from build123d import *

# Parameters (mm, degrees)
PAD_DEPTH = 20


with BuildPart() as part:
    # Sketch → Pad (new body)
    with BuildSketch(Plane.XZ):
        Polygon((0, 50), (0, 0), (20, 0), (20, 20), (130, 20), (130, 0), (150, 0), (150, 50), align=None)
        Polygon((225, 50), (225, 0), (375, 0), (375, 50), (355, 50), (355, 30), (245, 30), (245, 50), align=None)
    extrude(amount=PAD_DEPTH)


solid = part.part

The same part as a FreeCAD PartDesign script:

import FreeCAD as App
import Part
import Sketcher
Q = App.Units.Quantity


def add_polygon(sketch, points):
    """Adds a closed chain of lines whose ends are joined by coincident constraints."""
    first, n = sketch.GeometryCount, len(points)
    for a, b in zip(points, points[1:] + points[:1]):
        sketch.addGeometry(Part.LineSegment(App.Vector(*a, 0), App.Vector(*b, 0)), False)
    for i in range(n):
        sketch.addConstraint(Sketcher.Constraint("Coincident", first + i, 2, first + (i + 1) % n, 1))

doc = App.newDocument("Part")
body = doc.addObject("PartDesign::Body", "Body")
body.AllowCompound = True

sketch1 = body.newObject("Sketcher::SketchObject", "Sketch")
sketch1.AttachmentSupport = (doc.getObject("XZ_Plane"), [""])
sketch1.MapMode = "FlatFace"
add_polygon(sketch1, [(0, 50), (0, 0), (20, 0), (20, 20), (130, 20), (130, 0), (150, 0), (150, 50)])
add_polygon(sketch1, [(225, 50), (225, 0), (375, 0), (375, 50), (355, 50), (355, 30), (245, 30), (245, 50)])
sketch1.addConstraint([
    Sketcher.Constraint("Vertical", 0),
    Sketcher.Constraint("Horizontal", 1),
    Sketcher.Constraint("Vertical", 2),
    Sketcher.Constraint("Horizontal", 3),
    Sketcher.Constraint("Vertical", 4),
    Sketcher.Constraint("Horizontal", 5),
    Sketcher.Constraint("Vertical", 6),
    Sketcher.Constraint("Horizontal", 7),
    Sketcher.Constraint("Vertical", 8),
    Sketcher.Constraint("Horizontal", 9),
    Sketcher.Constraint("Vertical", 10),
    Sketcher.Constraint("Horizontal", 11),
    Sketcher.Constraint("Vertical", 12),
    Sketcher.Constraint("Horizontal", 13),
    Sketcher.Constraint("Vertical", 14),
    Sketcher.Constraint("Horizontal", 15),
    Sketcher.Constraint("Coincident", 0, 2, -1, 1),
    Sketcher.Constraint("PointOnObject", 4, 2, -1),
    Sketcher.Constraint("PointOnObject", 8, 2, -1),
    Sketcher.Constraint("Horizontal", 7, 2, 10, 2),
    Sketcher.Constraint("Horizontal", 11, 2, 14, 2),
    Sketcher.Constraint("Equal", 1, 5),
    Sketcher.Constraint("Equal", 7, 9),
    Sketcher.Constraint("Equal", 5, 11),
    Sketcher.Constraint("Equal", 3, 13),
    Sketcher.Constraint("Equal", 15, 2),
    Sketcher.Constraint("Equal", 4, 12),
    Sketcher.Constraint("DistanceX", 1, 1, 1, 2, Q("20 mm")),
    Sketcher.Constraint("DistanceX", 3, 1, 3, 2, Q("110 mm")),
    Sketcher.Constraint("DistanceY", 0, 2, 0, 1, Q("50 mm")),
    Sketcher.Constraint("DistanceX", -1, 1, 8, 2, Q("225 mm")),
])
pad1 = body.newObject("PartDesign::Pad", "Pad")
pad1.Profile = sketch1
pad1.Length = 20

doc.recompute()
